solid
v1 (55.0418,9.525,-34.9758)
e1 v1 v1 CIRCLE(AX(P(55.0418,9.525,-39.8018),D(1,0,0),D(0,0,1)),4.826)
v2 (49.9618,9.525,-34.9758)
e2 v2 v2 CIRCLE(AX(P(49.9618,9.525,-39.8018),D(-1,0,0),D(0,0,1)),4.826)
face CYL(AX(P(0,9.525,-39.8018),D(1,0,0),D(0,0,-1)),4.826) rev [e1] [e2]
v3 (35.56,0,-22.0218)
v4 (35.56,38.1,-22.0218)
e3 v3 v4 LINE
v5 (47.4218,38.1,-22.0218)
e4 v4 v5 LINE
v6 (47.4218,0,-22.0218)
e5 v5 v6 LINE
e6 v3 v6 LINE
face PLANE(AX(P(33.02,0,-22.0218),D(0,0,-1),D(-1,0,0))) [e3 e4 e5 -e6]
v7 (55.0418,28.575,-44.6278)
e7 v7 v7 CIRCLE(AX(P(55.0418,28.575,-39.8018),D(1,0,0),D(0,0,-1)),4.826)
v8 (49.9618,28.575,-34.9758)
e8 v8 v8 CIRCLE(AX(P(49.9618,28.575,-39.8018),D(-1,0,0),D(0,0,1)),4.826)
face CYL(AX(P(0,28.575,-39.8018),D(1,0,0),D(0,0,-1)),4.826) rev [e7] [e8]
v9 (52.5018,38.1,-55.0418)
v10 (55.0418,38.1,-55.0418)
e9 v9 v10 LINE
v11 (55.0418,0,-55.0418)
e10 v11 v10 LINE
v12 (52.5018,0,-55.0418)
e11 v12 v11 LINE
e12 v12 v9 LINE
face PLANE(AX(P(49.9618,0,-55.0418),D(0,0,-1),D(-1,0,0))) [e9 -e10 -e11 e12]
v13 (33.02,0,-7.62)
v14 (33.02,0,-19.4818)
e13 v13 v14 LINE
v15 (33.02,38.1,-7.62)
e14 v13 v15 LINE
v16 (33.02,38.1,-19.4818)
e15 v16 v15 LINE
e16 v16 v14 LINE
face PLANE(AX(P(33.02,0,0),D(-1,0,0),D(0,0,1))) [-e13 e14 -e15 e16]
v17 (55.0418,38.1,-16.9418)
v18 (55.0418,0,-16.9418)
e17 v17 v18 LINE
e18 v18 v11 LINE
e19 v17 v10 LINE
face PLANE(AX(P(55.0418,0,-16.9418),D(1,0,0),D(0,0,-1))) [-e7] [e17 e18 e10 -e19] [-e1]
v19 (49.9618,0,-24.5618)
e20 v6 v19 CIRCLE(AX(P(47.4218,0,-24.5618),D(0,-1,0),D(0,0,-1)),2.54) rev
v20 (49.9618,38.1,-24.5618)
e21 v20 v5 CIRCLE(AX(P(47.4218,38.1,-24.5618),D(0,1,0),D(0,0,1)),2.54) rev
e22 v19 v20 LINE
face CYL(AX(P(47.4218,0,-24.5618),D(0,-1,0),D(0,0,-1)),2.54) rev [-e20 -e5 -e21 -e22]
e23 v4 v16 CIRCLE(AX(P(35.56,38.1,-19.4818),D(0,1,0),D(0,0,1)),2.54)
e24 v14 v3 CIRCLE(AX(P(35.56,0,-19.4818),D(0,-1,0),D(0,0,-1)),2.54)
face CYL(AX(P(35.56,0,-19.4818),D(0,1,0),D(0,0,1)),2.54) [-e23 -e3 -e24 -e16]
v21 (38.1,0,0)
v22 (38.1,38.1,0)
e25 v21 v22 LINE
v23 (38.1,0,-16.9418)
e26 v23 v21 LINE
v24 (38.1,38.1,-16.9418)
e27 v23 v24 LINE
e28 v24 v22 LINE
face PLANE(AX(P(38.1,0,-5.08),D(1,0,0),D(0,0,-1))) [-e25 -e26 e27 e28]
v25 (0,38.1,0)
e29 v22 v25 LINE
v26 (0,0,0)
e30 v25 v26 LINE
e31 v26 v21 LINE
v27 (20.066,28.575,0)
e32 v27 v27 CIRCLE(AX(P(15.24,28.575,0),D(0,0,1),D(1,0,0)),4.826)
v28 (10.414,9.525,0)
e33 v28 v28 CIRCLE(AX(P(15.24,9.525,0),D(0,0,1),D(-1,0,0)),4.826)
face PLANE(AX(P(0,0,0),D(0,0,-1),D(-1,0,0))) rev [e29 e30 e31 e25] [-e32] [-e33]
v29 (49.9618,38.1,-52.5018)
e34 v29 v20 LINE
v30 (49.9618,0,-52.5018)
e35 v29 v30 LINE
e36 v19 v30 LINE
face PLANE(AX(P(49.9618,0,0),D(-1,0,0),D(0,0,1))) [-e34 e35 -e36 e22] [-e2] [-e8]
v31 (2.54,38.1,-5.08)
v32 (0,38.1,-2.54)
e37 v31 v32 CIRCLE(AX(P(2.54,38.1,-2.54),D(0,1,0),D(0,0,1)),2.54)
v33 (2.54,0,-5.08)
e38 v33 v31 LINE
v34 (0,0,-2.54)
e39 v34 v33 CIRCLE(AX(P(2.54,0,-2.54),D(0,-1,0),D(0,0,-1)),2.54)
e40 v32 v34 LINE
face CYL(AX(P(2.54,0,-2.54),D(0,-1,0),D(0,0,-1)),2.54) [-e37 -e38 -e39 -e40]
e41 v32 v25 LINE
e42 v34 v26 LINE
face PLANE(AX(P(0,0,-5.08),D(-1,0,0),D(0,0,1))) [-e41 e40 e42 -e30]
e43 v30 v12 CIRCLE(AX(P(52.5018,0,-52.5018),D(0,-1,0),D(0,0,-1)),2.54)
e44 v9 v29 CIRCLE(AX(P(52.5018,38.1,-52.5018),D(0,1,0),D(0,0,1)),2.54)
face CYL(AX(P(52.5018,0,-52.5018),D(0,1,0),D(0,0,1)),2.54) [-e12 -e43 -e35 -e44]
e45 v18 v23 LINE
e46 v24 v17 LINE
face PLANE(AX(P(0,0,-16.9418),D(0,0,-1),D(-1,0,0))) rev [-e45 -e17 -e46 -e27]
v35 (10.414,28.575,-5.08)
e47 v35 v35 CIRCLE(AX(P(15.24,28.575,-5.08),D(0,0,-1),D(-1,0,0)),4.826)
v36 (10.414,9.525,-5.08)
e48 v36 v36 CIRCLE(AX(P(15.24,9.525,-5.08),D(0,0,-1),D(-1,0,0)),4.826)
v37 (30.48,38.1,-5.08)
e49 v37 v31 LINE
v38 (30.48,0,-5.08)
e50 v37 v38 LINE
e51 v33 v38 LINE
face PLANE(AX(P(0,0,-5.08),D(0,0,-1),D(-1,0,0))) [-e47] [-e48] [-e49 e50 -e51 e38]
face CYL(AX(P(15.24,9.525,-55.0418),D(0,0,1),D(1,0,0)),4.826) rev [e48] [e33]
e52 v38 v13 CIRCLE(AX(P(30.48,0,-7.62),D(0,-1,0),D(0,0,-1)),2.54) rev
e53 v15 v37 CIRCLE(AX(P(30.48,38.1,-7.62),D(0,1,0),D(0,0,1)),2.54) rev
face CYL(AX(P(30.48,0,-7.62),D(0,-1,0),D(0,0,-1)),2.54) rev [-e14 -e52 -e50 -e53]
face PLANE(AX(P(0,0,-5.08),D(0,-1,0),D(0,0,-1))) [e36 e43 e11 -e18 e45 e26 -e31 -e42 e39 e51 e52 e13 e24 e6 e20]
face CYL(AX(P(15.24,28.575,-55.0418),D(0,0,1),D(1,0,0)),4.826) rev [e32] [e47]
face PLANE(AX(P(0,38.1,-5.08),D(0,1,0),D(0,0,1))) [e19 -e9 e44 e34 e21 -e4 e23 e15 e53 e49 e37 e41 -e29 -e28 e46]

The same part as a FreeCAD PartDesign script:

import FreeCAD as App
import Part
import Sketcher
from FreeCAD import Vector
Q = App.Units.Quantity


def edges_at(feature, points):
    """Names of the edges that pass closest to the given points."""
    edges = feature.Shape.Edges
    near = lambda p: min(range(len(edges)), key=lambda i: edges[i].distToShape(Part.Vertex(*p))[0])
    return sorted({f"Edge{near(p) + 1}" for p in points})

doc = App.newDocument("Part")
body = doc.addObject("PartDesign::Body", "Body")

sketch1 = doc.addObject("Sketcher::SketchObject", "Sketch")
body.addObject(sketch1)
sketch1.AttachmentSupport = (doc.XY_Plane, [""])
sketch1.MapMode = "FlatFace"
sketch1.addGeometry([
    Part.LineSegment(Vector(0, 38, 0), Vector(0, 0, 0)),
    Part.LineSegment(Vector(0, 0, 0), Vector(38, 0, 0)),
    Part.LineSegment(Vector(38, 0, 0), Vector(38, 38, 0)),
    Part.LineSegment(Vector(38, 38, 0), Vector(0, 38, 0)),
], False)
sketch1.addConstraint([
    Sketcher.Constraint("Coincident", 0, 2, 1, 1),
    Sketcher.Constraint("Coincident", 1, 2, 2, 1),
    Sketcher.Constraint("Coincident", 2, 2, 3, 1),
    Sketcher.Constraint("Coincident", 3, 2, 0, 1),
    Sketcher.Constraint("Vertical", 0),
    Sketcher.Constraint("Horizontal", 1),
    Sketcher.Constraint("Vertical", 2),
    Sketcher.Constraint("Horizontal", 3),
    Sketcher.Constraint("Coincident", 0, 2, -1, 1),
    Sketcher.Constraint("Equal", 3, 0),
    Sketcher.Constraint("DistanceX", 1, 1, 1, 2, Q("1.5 in")),
])
pad1 = doc.addObject("PartDesign::Pad", "Pad")
body.addObject(pad1)
pad1.Profile = sketch1
pad1.Length = Q("0.2 in")
pad1.Reversed = True

sketch2 = doc.addObject("Sketcher::SketchObject", "Sketch001")
body.addObject(sketch2)
sketch2.AttachmentSupport = (doc.YZ_Plane, [""])
sketch2.MapMode = "FlatFace"
sketch2.AttachmentOffset = App.Placement(Vector(0, 0, 1.5 * 25.4), App.Rotation())
sketch2.addGeometry([
    Part.LineSegment(Vector(38, 0, 0), Vector(0, 0, 0)),
    Part.LineSegment(Vector(0, 0, 0), Vector(0, -22, 0)),
    Part.LineSegment(Vector(0, -22, 0), Vector(38, -22, 0)),
    Part.LineSegment(Vector(38, -22, 0), Vector(38, 0, 0)),
], False)
sketch2.addConstraint([
    Sketcher.Constraint("Coincident", 0, 2, 1, 1),
    Sketcher.Constraint("Coincident", 1, 2, 2, 1),
    Sketcher.Constraint("Coincident", 2, 2, 3, 1),
    Sketcher.Constraint("Coincident", 3, 2, 0, 1),
    Sketcher.Constraint("Horizontal", 0),
    Sketcher.Constraint("Vertical", 1),
    Sketcher.Constraint("Horizontal", 2),
    Sketcher.Constraint("Vertical", 3),
    Sketcher.Constraint("Coincident", 0, 2, -1, 1),
    Sketcher.Constraint("DistanceX", 0, 2, 0, 1, Q("1.5 in")),
    Sketcher.Constraint("DistanceY", 1, 2, 1, 1, Q("0.867 in")),
])
pad2 = doc.addObject("PartDesign::Pad", "Pad001")
body.addObject(pad2)
pad2.Profile = sketch2
pad2.Length = Q("0.2 in")
pad2.Reversed = True

sketch3 = doc.addObject("Sketcher::SketchObject", "Sketch002")
body.addObject(sketch3)
sketch3.AttachmentSupport = (doc.XY_Plane, [""])
sketch3.MapMode = "FlatFace"
sketch3.AttachmentOffset = App.Placement(Vector(0, 0, -0.867 * 25.4), App.Rotation())
sketch3.addGeometry([
    Part.LineSegment(Vector(55, 38, 0), Vector(55, 0, 0)),
    Part.LineSegment(Vector(55, 0, 0), Vector(33, 0, 0)),
    Part.LineSegment(Vector(33, 0, 0), Vector(33, 38, 0)),
    Part.LineSegment(Vector(33, 38, 0), Vector(55, 38, 0)),
], False)
sketch3.addConstraint([
    Sketcher.Constraint("Coincident", 0, 2, 1, 1),
    Sketcher.Constraint("Coincident", 1, 2, 2, 1),
    Sketcher.Constraint("Coincident", 2, 2, 3, 1),
    Sketcher.Constraint("Coincident", 3, 2, 0, 1),
    Sketcher.Constraint("Vertical", 0),
    Sketcher.Constraint("Horizontal", 1),
    Sketcher.Constraint("Vertical", 2),
    Sketcher.Constraint("Horizontal", 3),
    Sketcher.Constraint("PointOnObject", 0, 2, -1),
    Sketcher.Constraint("DistanceY", 0, 2, 0, 1, Q("1.5 in")),
    Sketcher.Constraint("DistanceX", -1, 1, 1, 2, Q("1.3 in")),
    Sketcher.Constraint("DistanceX", 1, 2, 1, 1, Q("0.867 in")),
])
pad3 = doc.addObject("PartDesign::Pad", "Pad002")
body.addObject(pad3)
pad3.Profile = sketch3
pad3.Length = Q("0.2 in")

sketch4 = doc.addObject("Sketcher::SketchObject", "Sketch003")
body.addObject(sketch4)
sketch4.AttachmentSupport = (doc.YZ_Plane, [""])
sketch4.MapMode = "FlatFace"
sketch4.AttachmentOffset = App.Placement(Vector(0, 0, 2.167 * 25.4), App.Rotation())
sketch4.addGeometry([
    Part.LineSegment(Vector(38, -17, 0), Vector(0, -17, 0)),
    Part.LineSegment(Vector(0, -17, 0), Vector(0, -55, 0)),
    Part.LineSegment(Vector(0, -55, 0), Vector(38, -55, 0)),
    Part.LineSegment(Vector(38, -55, 0), Vector(38, -17, 0)),
], False)
sketch4.addConstraint([
    Sketcher.Constraint("Coincident", 0, 2, 1, 1),
    Sketcher.Constraint("Coincident", 1, 2, 2, 1),
    Sketcher.Constraint("Coincident", 2, 2, 3, 1),
    Sketcher.Constraint("Coincident", 3, 2, 0, 1),
    Sketcher.Constraint("Horizontal", 0),
    Sketcher.Constraint("Vertical", 1),
    Sketcher.Constraint("Horizontal", 2),
    Sketcher.Constraint("Vertical", 3),
    Sketcher.Constraint("PointOnObject", 0, 2, -2),
    Sketcher.Constraint("Equal", 2, 1),
    Sketcher.Constraint("DistanceX", 0, 2, 0, 1, Q("1.5 in")),
    Sketcher.Constraint("DistanceY", 0, 2, -1, 1, Q("0.667 in")),
])
pad4 = doc.addObject("PartDesign::Pad", "Pad003")
body.addObject(pad4)
pad4.Profile = sketch4
pad4.Length = Q("0.2 in")
pad4.Reversed = True

sketch5 = doc.addObject("Sketcher::SketchObject", "Sketch004")
body.addObject(sketch5)
sketch5.AttachmentSupport = (doc.YZ_Plane, [""])
sketch5.MapMode = "FlatFace"
sketch5.AttachmentOffset = App.Placement(Vector(0, 0, 2.167 * 25.4), App.Rotation())
sketch5.addGeometry([
    Part.Circle(Vector(28.6, -39.8, 0), Vector(0, 0, 1), 4.8),
    Part.Circle(Vector(9.5, -39.8, 0), Vector(0, 0, 1), 4.8),
], False)
sketch5.addConstraint([
    Sketcher.Constraint("Equal", 0, 1),
    Sketcher.Constraint("Horizontal", 0, 3, 1, 3),
    Sketcher.Constraint("Diameter", 0, Q("0.38 in")),
    Sketcher.Constraint("DistanceX", 1, 3, 0, 3, Q("0.75 in")),
    Sketcher.Constraint("DistanceX", -1, 1, 0, 3, Q("1.125 in")),
    Sketcher.Constraint("DistanceY", 0, 3, -1, 1, Q("1.567 in")),
])
pocket1 = doc.addObject("PartDesign::Pocket", "Pocket")
body.addObject(pocket1)
pocket1.Profile = sketch5
pocket1.Type = "ThroughAll"

sketch6 = doc.addObject("Sketcher::SketchObject", "Sketch005")
body.addObject(sketch6)
sketch6.AttachmentSupport = (doc.XY_Plane, [""])
sketch6.MapMode = "FlatFace"
sketch6.addGeometry([
    Part.Circle(Vector(15.2, 28.6, 0), Vector(0, 0, 1), 4.8),
    Part.Circle(Vector(15.2, 9.5, 0), Vector(0, 0, 1), 4.8),
], False)
sketch6.addConstraint([
    Sketcher.Constraint("Equal", 0, 1),
    Sketcher.Constraint("Vertical", 0, 3, 1, 3),
    Sketcher.Constraint("Diameter", 0, Q("0.38 in")),
    Sketcher.Constraint("DistanceX", -1, 1, 0, 3, Q("0.6 in")),
    Sketcher.Constraint("DistanceY", 1, 3, 0, 3, Q("0.75 in")),
    Sketcher.Constraint("DistanceY", -1, 1, 0, 3, Q("1.125 in")),
])
pocket2 = doc.addObject("PartDesign::Pocket", "Pocket001")
body.addObject(pocket2)
pocket2.Profile = sketch6
pocket2.Type = "ThroughAll"
doc.recompute()

fillet = doc.addObject("PartDesign::Fillet", "Fillet")
body.addObject(fillet)
fillet.Base = (pocket2, edges_at(pocket2, [(49.962, 19.05, -55.042)]))
fillet.Radius = Q("0.1 in")
doc.recompute()

fillet2 = doc.addObject("PartDesign::Fillet", "Fillet001")
body.addObject(fillet2)
fillet2.Base = (fillet, edges_at(fillet, [(49.962, 19.05, -22.022)]))
fillet2.Radius = Q("0.1 in")
doc.recompute()

fillet3 = doc.addObject("PartDesign::Fillet", "Fillet002")
body.addObject(fillet3)
fillet3.Base = (fillet2, edges_at(fillet2, [(33.02, 19.05, -22.022)]))
fillet3.Radius = Q("0.1 in")
doc.recompute()

fillet4 = doc.addObject("PartDesign::Fillet", "Fillet003")
body.addObject(fillet4)
fillet4.Base = (fillet3, edges_at(fillet3, [(33.02, 19.05, -5.08)]))
fillet4.Radius = Q("0.1 in")
doc.recompute()

fillet5 = doc.addObject("PartDesign::Fillet", "Fillet004")
body.addObject(fillet5)
fillet5.Base = (fillet4, edges_at(fillet4, [(0, 19.05, -5.08)]))
fillet5.Radius = Q("0.1 in")

doc.recompute()
